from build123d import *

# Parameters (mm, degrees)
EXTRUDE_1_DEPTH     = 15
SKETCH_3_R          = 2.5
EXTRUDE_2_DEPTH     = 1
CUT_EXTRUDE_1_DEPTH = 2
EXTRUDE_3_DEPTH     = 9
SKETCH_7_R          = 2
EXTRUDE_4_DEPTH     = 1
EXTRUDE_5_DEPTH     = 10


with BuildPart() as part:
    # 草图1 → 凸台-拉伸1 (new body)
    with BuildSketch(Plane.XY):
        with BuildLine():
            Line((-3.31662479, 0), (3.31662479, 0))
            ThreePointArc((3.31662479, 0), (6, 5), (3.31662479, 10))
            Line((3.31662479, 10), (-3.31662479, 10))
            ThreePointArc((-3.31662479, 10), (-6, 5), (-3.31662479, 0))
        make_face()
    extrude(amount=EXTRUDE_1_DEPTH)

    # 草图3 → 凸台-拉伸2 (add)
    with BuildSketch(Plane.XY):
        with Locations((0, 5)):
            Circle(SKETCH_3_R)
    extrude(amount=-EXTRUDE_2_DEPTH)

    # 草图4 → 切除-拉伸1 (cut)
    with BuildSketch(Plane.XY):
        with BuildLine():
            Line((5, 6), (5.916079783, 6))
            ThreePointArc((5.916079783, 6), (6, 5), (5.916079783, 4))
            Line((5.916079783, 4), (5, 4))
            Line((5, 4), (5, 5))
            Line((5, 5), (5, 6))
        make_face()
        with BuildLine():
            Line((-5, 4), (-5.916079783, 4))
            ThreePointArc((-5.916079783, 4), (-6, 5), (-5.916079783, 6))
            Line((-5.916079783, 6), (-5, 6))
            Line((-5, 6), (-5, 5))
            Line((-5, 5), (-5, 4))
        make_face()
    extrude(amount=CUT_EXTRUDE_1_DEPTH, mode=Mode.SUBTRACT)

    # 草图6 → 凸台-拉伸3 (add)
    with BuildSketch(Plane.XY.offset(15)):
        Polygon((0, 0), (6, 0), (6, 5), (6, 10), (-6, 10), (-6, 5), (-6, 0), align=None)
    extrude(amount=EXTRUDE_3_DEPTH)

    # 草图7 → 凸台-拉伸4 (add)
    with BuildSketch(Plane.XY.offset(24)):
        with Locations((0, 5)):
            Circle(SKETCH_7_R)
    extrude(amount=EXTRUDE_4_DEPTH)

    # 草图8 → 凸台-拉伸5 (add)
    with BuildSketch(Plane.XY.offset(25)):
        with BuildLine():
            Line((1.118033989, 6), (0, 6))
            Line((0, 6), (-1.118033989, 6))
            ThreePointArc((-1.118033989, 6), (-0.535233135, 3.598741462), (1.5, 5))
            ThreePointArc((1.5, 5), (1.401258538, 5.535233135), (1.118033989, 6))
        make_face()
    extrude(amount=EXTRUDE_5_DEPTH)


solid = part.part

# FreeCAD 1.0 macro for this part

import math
import FreeCAD as App
import Part
import Sketcher
Q = App.Units.Quantity

doc = App.newDocument("Part")
body = doc.addObject("PartDesign::Body", "Body")

# Sketch on XY plane
sketch1 = body.newObject("Sketcher::SketchObject", "Sketch")
sketch1.AttachmentSupport = (doc.getObject("XY_Plane"), [""])
sketch1.MapMode = "FlatFace"
sketch1.addGeometry([
    Part.LineSegment(App.Vector(-3, 0, 0), App.Vector(3, 0, 0)),
    Part.ArcOfCircle(Part.Circle(App.Vector(0, 5, 0), App.Vector(0, 0, 1), 6), math.radians(-56), math.radians(56)),
    Part.LineSegment(App.Vector(3, 10, 0), App.Vector(-3, 10, 0)),
    Part.ArcOfCircle(Part.Circle(App.Vector(0, 5, 0), App.Vector(0, 0, 1), 6), math.radians(124), math.radians(236)),
], False)
sketch1.addConstraint([
    Sketcher.Constraint("Coincident", 0, 2, 1, 1),
    Sketcher.Constraint("Coincident", 1, 2, 2, 1),
    Sketcher.Constraint("Coincident", 2, 2, 3, 1),
    Sketcher.Constraint("Coincident", 3, 2, 0, 1),
    Sketcher.Constraint("Horizontal", 0),
    Sketcher.Constraint("Horizontal", 2),
    Sketcher.Constraint("Coincident", 3, 3, 1, 3),
    Sketcher.Constraint("Equal", 1, 3),
    Sketcher.Constraint("Symmetric", 0, 2, 3, 2, -1, 1),
    Sketcher.Constraint("Vertical", 0, 2, 1, 2),
    Sketcher.Constraint("Radius", 1, Q("6 mm")),
    Sketcher.Constraint("DistanceY", -1, 1, 1, 3, Q("5 mm")),
])
pad1 = body.newObject("PartDesign::Pad", "Pad")
pad1.Profile = sketch1
pad1.Length = 15

# Sketch on XY plane
sketch2 = body.newObject("Sketcher::SketchObject", "Sketch001")
sketch2.AttachmentSupport = (doc.getObject("XY_Plane"), [""])
sketch2.MapMode = "FlatFace"
sketch2.addGeometry(Part.Circle(App.Vector(0, 5, 0), App.Vector(0, 0, 1), 2.5), False)
sketch2.addConstraint([
    Sketcher.Constraint("PointOnObject", 0, 3, -2),
    Sketcher.Constraint("Diameter", 0, Q("5 mm")),
    Sketcher.Constraint("DistanceY", -1, 1, 0, 3, Q("5 mm")),
])
pad2 = body.newObject("PartDesign::Pad", "Pad001")
pad2.Profile = sketch2
pad2.Length = 1
pad2.Reversed = True

# Sketch on XY plane
sketch3 = body.newObject("Sketcher::SketchObject", "Sketch002")
sketch3.AttachmentSupport = (doc.getObject("XY_Plane"), [""])
sketch3.MapMode = "FlatFace"
sketch3.addGeometry([
    Part.LineSegment(App.Vector(5.9, 6, 0), App.Vector(5, 6, 0)),  # 0
    Part.LineSegment(App.Vector(5, 6, 0), App.Vector(5, 4, 0)),  # 1
    Part.LineSegment(App.Vector(5, 4, 0), App.Vector(5.9, 4, 0)),  # 2
    Part.ArcOfCircle(Part.Circle(App.Vector(0, 5, 0), App.Vector(0, 0, 1), 6), math.radians(-9.59), math.radians(9.59)),  # 3
    Part.LineSegment(App.Vector(-5.9, 4, 0), App.Vector(-5, 4, 0)),  # 4
    Part.LineSegment(App.Vector(-5, 4, 0), App.Vector(-5, 6, 0)),  # 5
    Part.LineSegment(App.Vector(-5, 6, 0), App.Vector(-5.9, 6, 0)),  # 6
    Part.ArcOfCircle(Part.Circle(App.Vector(0, 5, 0), App.Vector(0, 0, 1), 6), math.radians(170.41), math.radians(189.59)),  # 7
], False)
sketch3.addConstraint([
    Sketcher.Constraint("Coincident", 0, 2, 1, 1),
    Sketcher.Constraint("Coincident", 1, 2, 2, 1),
    Sketcher.Constraint("Coincident", 2, 2, 3, 1),
    Sketcher.Constraint("Coincident", 3, 2, 0, 1),
    Sketcher.Constraint("Coincident", 4, 2, 5, 1),
    Sketcher.Constraint("Coincident", 5, 2, 6, 1),
    Sketcher.Constraint("Coincident", 6, 2, 7, 1),
    Sketcher.Constraint("Coincident", 7, 2, 4, 1),
    Sketcher.Constraint("Horizontal", 0),
    Sketcher.Constraint("Vertical", 1),
    Sketcher.Constraint("Horizontal", 2),
    Sketcher.Constraint("Horizontal", 4),
    Sketcher.Constraint("Vertical", 5),
    Sketcher.Constraint("Horizontal", 6),
    Sketcher.Constraint("Coincident", 7, 3, 3, 3),
    Sketcher.Constraint("Equal", 3, 7),
    Sketcher.Constraint("Symmetric", 1, 2, 4, 2, -2),
    Sketcher.Constraint("Symmetric", 3, 2, 6, 2, -2),
    Sketcher.Constraint("Vertical", 2, 2, 3, 2),
    Sketcher.Constraint("Radius", 3, Q("6 mm")),
    Sketcher.Constraint("DistanceY", 1, 2, 1, 1, Q("2 mm")),
    Sketcher.Constraint("DistanceY", -1, 1, 3, 3, Q("5 mm")),
    Sketcher.Constraint("DistanceX", -1, 1, 0, 2, Q("5 mm")),
])
pocket1 = body.newObject("PartDesign::Pocket", "Pocket")
pocket1.Profile = sketch3
pocket1.Length = 2
pocket1.Reversed = True

# Sketch on XY plane
sketch4 = body.newObject("Sketcher::SketchObject", "Sketch003")
sketch4.AttachmentSupport = (doc.getObject("XY_Plane"), [""])
sketch4.MapMode = "FlatFace"
sketch4.AttachmentOffset = App.Placement(App.Vector(0, 0, 15), App.Rotation())
sketch4.addGeometry([
    Part.LineSegment(App.Vector(6, 0, 0), App.Vector(6, 10, 0)),
    Part.LineSegment(App.Vector(6, 10, 0), App.Vector(-6, 10, 0)),
    Part.LineSegment(App.Vector(-6, 10, 0), App.Vector(-6, 0, 0)),
    Part.LineSegment(App.Vector(-6, 0, 0), App.Vector(6, 0, 0)),
], False)
sketch4.addConstraint([
    Sketcher.Constraint("Coincident", 0, 2, 1, 1),
    Sketcher.Constraint("Coincident", 1, 2, 2, 1),
    Sketcher.Constraint("Coincident", 2, 2, 3, 1),
    Sketcher.Constraint("Coincident", 3, 2, 0, 1),
    Sketcher.Constraint("Vertical", 0),
    Sketcher.Constraint("Horizontal", 1),
    Sketcher.Constraint("Vertical", 2),
    Sketcher.Constraint("Horizontal", 3),
    Sketcher.Constraint("Symmetric", 2, 2, 3, 2, -1, 1),
    Sketcher.Constraint("DistanceX", 1, 2, 1, 1, Q("12 mm")),
    Sketcher.Constraint("DistanceY", 0, 1, 0, 2, Q("10 mm")),
])
pad3 = body.newObject("PartDesign::Pad", "Pad002")
pad3.Profile = sketch4
pad3.Length = 9

# Sketch on XY plane
sketch5 = body.newObject("Sketcher::SketchObject", "Sketch004")
sketch5.AttachmentSupport = (doc.getObject("XY_Plane"), [""])
sketch5.MapMode = "FlatFace"
sketch5.AttachmentOffset = App.Placement(App.Vector(0, 0, 24), App.Rotation())
sketch5.addGeometry(Part.Circle(App.Vector(0, 5, 0), App.Vector(0, 0, 1), 2), False)
sketch5.addConstraint([
    Sketcher.Constraint("PointOnObject", 0, 3, -2),
    Sketcher.Constraint("Diameter", 0, Q("4 mm")),
    Sketcher.Constraint("DistanceY", -1, 1, 0, 3, Q("5 mm")),
])
pad4 = body.newObject("PartDesign::Pad", "Pad003")
pad4.Profile = sketch5
pad4.Length = 1

# Sketch on XY plane
sketch6 = body.newObject("Sketcher::SketchObject", "Sketch005")
sketch6.AttachmentSupport = (doc.getObject("XY_Plane"), [""])
sketch6.MapMode = "FlatFace"
sketch6.AttachmentOffset = App.Placement(App.Vector(0, 0, 25), App.Rotation())
sketch6.addGeometry([
    Part.LineSegment(App.Vector(1.1, 6, 0), App.Vector(-1.1, 6, 0)),
    Part.ArcOfCircle(Part.Circle(App.Vector(0, 5, 0), App.Vector(0, 0, 1), 1.5), math.radians(138), math.radians(360)),
    Part.ArcOfCircle(Part.Circle(App.Vector(0, 5, 0), App.Vector(0, 0, 1), 1.5), math.radians(0), math.radians(42)),
], False)
sketch6.addConstraint([
    Sketcher.Constraint("Coincident", 0, 2, 1, 1),
    Sketcher.Constraint("Tangent", 1, 2, 2, 1),
    Sketcher.Constraint("Coincident", 2, 2, 0, 1),
    Sketcher.Constraint("Horizontal", 0),
    Sketcher.Constraint("Equal", 1, 2),
    Sketcher.Constraint("PointOnObject", 1, 3, -2),
    Sketcher.Constraint("Horizontal", 2, 3, 1, 2),
    Sketcher.Constraint("Radius", 1, Q("1.5 mm")),
    Sketcher.Constraint("DistanceY", -1, 1, 1, 3, Q("5 mm")),
    Sketcher.Constraint("DistanceY", -1, 1, 0, 2, Q("6 mm")),
])
pad5 = body.newObject("PartDesign::Pad", "Pad004")
pad5.Profile = sketch6
pad5.Length = 10

doc.recompute()
